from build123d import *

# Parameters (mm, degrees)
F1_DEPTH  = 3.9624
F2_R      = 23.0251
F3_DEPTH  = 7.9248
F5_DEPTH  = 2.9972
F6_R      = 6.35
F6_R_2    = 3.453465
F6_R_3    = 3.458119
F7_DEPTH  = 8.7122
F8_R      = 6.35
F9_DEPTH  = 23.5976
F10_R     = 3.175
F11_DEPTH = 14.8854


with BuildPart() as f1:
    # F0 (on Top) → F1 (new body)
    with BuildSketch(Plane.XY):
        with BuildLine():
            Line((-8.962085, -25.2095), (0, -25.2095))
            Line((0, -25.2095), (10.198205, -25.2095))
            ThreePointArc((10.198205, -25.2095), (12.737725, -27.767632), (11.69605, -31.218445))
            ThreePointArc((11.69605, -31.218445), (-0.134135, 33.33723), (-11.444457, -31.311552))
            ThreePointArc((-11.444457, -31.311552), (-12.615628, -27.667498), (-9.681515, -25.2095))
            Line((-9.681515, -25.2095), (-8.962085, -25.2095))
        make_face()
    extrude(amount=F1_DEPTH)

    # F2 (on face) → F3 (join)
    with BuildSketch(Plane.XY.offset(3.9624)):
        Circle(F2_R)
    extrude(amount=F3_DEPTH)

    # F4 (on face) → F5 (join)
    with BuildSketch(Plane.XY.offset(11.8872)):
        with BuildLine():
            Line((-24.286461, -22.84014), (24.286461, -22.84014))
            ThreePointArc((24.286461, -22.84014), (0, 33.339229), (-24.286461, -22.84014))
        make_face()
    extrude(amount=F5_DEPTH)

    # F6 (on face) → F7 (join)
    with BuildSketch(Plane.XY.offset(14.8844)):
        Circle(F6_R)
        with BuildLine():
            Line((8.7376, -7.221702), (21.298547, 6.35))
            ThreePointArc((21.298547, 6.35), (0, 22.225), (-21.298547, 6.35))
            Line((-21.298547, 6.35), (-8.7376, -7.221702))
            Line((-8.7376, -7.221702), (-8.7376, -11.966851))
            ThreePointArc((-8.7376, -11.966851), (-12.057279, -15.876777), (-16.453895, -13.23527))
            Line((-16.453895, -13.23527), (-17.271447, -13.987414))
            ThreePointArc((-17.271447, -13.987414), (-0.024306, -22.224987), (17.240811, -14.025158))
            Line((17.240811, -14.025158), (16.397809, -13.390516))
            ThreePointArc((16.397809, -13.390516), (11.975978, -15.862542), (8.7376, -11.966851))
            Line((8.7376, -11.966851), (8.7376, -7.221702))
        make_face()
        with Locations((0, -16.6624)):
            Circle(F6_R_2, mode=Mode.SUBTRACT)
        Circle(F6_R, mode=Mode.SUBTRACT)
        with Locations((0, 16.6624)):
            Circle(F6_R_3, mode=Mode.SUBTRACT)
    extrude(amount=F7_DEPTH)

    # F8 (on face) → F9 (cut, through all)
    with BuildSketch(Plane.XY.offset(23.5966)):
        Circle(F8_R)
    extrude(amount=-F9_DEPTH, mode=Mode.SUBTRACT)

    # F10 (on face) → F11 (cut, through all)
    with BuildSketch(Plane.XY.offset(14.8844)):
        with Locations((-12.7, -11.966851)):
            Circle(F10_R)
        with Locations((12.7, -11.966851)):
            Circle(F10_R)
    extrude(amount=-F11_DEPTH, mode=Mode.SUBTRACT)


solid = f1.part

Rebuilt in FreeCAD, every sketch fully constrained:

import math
import FreeCAD as App
import Part
import Sketcher

V = App.Vector
Q = App.Units.Quantity

doc = App.newDocument("Part")
body = doc.addObject("PartDesign::Body", "Body")

sketch1 = body.newObject("Sketcher::SketchObject", "Sketch")
sketch1.AttachmentSupport = (doc.getObject("XY_Plane"), [""])
sketch1.MapMode = "FlatFace"
sketch1.addGeometry(Part.ArcOfCircle(Part.Circle(V(9.3, -28.6, 0), V(0, 0, 1), 3.5), math.radians(-48), math.radians(76)), False)
sketch1.addGeometry(Part.ArcOfCircle(Part.Circle(V(0, 0, 0), V(0, 0, 1), 33.3), math.radians(-69), math.radians(250)), False)
sketch1.addGeometry(Part.ArcOfCircle(Part.Circle(V(-9.3, -28.6, 0), V(0, 0, 1), 3.4), math.radians(96), math.radians(232)), False)
sketch1.addGeometry(Part.LineSegment(V(-9.7, -25.2, 0), V(10.2, -25.2, 0)), False)
sketch1.addConstraint(Sketcher.Constraint("Coincident", 0, 1, 1, 1))
sketch1.addConstraint(Sketcher.Constraint("Coincident", 1, 2, 2, 2))
sketch1.addConstraint(Sketcher.Constraint("Coincident", 2, 1, 3, 1))
sketch1.addConstraint(Sketcher.Constraint("Coincident", 3, 2, 0, 2))
sketch1.addConstraint(Sketcher.Constraint("Horizontal", 3))
sketch1.addConstraint(Sketcher.Constraint("Coincident", 1, 3, -1, 1))
sketch1.addConstraint(Sketcher.Constraint("Symmetric", 0, 3, 2, 3, -2))
sketch1.addConstraint(Sketcher.Constraint("Radius", 1, Q("1.3125 in")))
sketch1.addConstraint(Sketcher.Constraint("DistanceX", -1, 1, 0, 3, Q("0.367 in")))
sketch1.addConstraint(Sketcher.Constraint("Radius", 0, 3.520451))
sketch1.addConstraint(Sketcher.Constraint("Radius", 2, 3.428539))
sketch1.addConstraint(Sketcher.Constraint("DistanceY", 2, 1, -1, 1, Q("0.9925 in")))
sketch1.addConstraint(Sketcher.Constraint("DistanceX", 3, 1, 3, 2, 19.87972))
pad1 = body.newObject("PartDesign::Pad", "Pad")
pad1.Profile = sketch1
pad1.Length = Q("0.156 in")

sketch2 = body.newObject("Sketcher::SketchObject", "Sketch001")
sketch2.AttachmentSupport = (doc.getObject("XY_Plane"), [""])
sketch2.MapMode = "FlatFace"
sketch2.AttachmentOffset = App.Placement(V(0, 0, 0.156 * 25.4), App.Rotation())
sketch2.addGeometry(Part.Circle(V(0, 0, 0), V(0, 0, 1), 23), False)
sketch2.addConstraint(Sketcher.Constraint("Coincident", 0, 3, -1, 1))
sketch2.addConstraint(Sketcher.Constraint("Diameter", 0, Q("1.813 in")))
pad2 = body.newObject("PartDesign::Pad", "Pad001")
pad2.Profile = sketch2
pad2.Length = Q("0.312 in")

sketch3 = body.newObject("Sketcher::SketchObject", "Sketch002")
sketch3.AttachmentSupport = (doc.getObject("XY_Plane"), [""])
sketch3.MapMode = "FlatFace"
sketch3.AttachmentOffset = App.Placement(V(0, 0, 0.468 * 25.4), App.Rotation())
sketch3.addGeometry(Part.LineSegment(V(-24, -23, 0), V(24, -23, 0)), False)
sketch3.addGeometry(Part.ArcOfCircle(Part.Circle(V(0, 0, 0), V(0, 0, 1), 33), math.radians(-43), math.radians(223)), False)
sketch3.addConstraint(Sketcher.Constraint("Coincident", 0, 1, 1, 2))
sketch3.addConstraint(Sketcher.Constraint("Coincident", 1, 1, 0, 2))
sketch3.addConstraint(Sketcher.Constraint("Horizontal", 0))
sketch3.addConstraint(Sketcher.Constraint("Coincident", 1, 3, -1, 1))
sketch3.addConstraint(Sketcher.Constraint("Radius", 1, 33.339229))
sketch3.addConstraint(Sketcher.Constraint("DistanceX", 0, 1, 0, 2, 48.572922))
pad3 = body.newObject("PartDesign::Pad", "Pad002")
pad3.Profile = sketch3
pad3.Length = Q("0.118 in")

sketch4 = body.newObject("Sketcher::SketchObject", "Sketch003")
sketch4.AttachmentSupport = (doc.getObject("XY_Plane"), [""])
sketch4.MapMode = "FlatFace"
sketch4.AttachmentOffset = App.Placement(V(0, 0, 0.586 * 25.4), App.Rotation())
sketch4.addGeometry(Part.LineSegment(V(8.7, -7.2, 0), V(21.3, 6.3, 0)), False)
sketch4.addGeometry(Part.ArcOfCircle(Part.Circle(V(0, 0, 0), V(0, 0, 1), 22.2), math.radians(17), math.radians(163)), False)
sketch4.addGeometry(Part.LineSegment(V(-21.3, 6.3, 0), V(-8.7, -7.2, 0)), False)
sketch4.addGeometry(Part.LineSegment(V(-8.7, -7.2, 0), V(-8.7, -12, 0)), False)
sketch4.addGeometry(Part.ArcOfCircle(Part.Circle(V(-12.7, -12, 0), V(0, 0, 1), 4), math.radians(-161), math.radians(0)), False)
sketch4.addGeometry(Part.LineSegment(V(-16.5, -13.2, 0), V(-17.3, -14, 0)), False)
sketch4.addGeometry(Part.ArcOfCircle(Part.Circle(V(0, 0, 0), V(0, 0, 1), 22.2), math.radians(-141), math.radians(-39)), False)
sketch4.addGeometry(Part.LineSegment(V(17.2, -14, 0), V(16.4, -13.4, 0)), False)
sketch4.addGeometry(Part.ArcOfCircle(Part.Circle(V(12.7, -12, 0), V(0, 0, 1), 4), math.radians(180), math.radians(339)), False)
sketch4.addGeometry(Part.LineSegment(V(8.7, -12, 0), V(8.7, -7.2, 0)), False)
sketch4.addGeometry(Part.Circle(V(0, -16.7, 0), V(0, 0, 1), 3.5), False)
sketch4.addGeometry(Part.Circle(V(0, 0, 0), V(0, 0, 1), 6.3), False)
sketch4.addGeometry(Part.Circle(V(0, 16.7, 0), V(0, 0, 1), 3.5), False)
sketch4.addConstraint(Sketcher.Constraint("Coincident", 0, 2, 1, 1))
sketch4.addConstraint(Sketcher.Constraint("Coincident", 1, 2, 2, 1))
sketch4.addConstraint(Sketcher.Constraint("Coincident", 2, 2, 3, 1))
sketch4.addConstraint(Sketcher.Constraint("Tangent", 3, 2, 4, 2))
sketch4.addConstraint(Sketcher.Constraint("Coincident", 4, 1, 5, 1))
sketch4.addConstraint(Sketcher.Constraint("Coincident", 5, 2, 6, 1))
sketch4.addConstraint(Sketcher.Constraint("Coincident", 6, 2, 7, 1))
sketch4.addConstraint(Sketcher.Constraint("Coincident", 7, 2, 8, 2))
sketch4.addConstraint(Sketcher.Constraint("Tangent", 8, 1, 9, 1))
sketch4.addConstraint(Sketcher.Constraint("Coincident", 9, 2, 0, 1))
sketch4.addConstraint(Sketcher.Constraint("Vertical", 3))
sketch4.addConstraint(Sketcher.Constraint("Vertical", 9))
sketch4.addConstraint(Sketcher.Constraint("Coincident", 1, 3, -1, 1))
sketch4.addConstraint(Sketcher.Constraint("Coincident", 6, 3, -1, 1))
sketch4.addConstraint(Sketcher.Constraint("Coincident", 11, 3, -1, 1))
sketch4.addConstraint(Sketcher.Constraint("Equal", 1, 6))
sketch4.addConstraint(Sketcher.Constraint("Equal", 4, 8))
sketch4.addConstraint(Sketcher.Constraint("Symmetric", 10, 3, 12, 3, -1, 1))
sketch4.addConstraint(Sketcher.Constraint("Symmetric", 4, 3, 8, 3, -2))
sketch4.addConstraint(Sketcher.Constraint("PointOnObject", 10, 3, -2))
sketch4.addConstraint(Sketcher.Constraint("Horizontal", 0, 2, 1, 2))
sketch4.addConstraint(Sketcher.Constraint("Horizontal", 2, 2, 9, 2))
sketch4.addConstraint(Sketcher.Constraint("Diameter", 11, Q("0.5 in")))
sketch4.addConstraint(Sketcher.Constraint("Radius", 1, Q("0.875 in")))
sketch4.addConstraint(Sketcher.Constraint("Radius", 4, Q("0.156 in")))
sketch4.addConstraint(Sketcher.Constraint("DistanceX", 4, 3, 8, 3, Q("1 in")))
sketch4.addConstraint(Sketcher.Constraint("DistanceY", -1, 1, 0, 2, Q("0.25 in")))
sketch4.addConstraint(Sketcher.Constraint("Diameter", 10, 6.90693))
sketch4.addConstraint(Sketcher.Constraint("DistanceY", 10, 3, -1, 1, Q("0.656 in")))
sketch4.addConstraint(Sketcher.Constraint("Diameter", 12, 6.916238))
sketch4.addConstraint(Sketcher.Constraint("DistanceY", 3, 2, 3, 1, 4.745149))
sketch4.addConstraint(Sketcher.Constraint("DistanceY", 2, 2, -1, 1, 7.221702))
sketch4.addConstraint(Sketcher.Constraint("Distance", 7, 1.055189))
sketch4.addConstraint(Sketcher.Constraint("DistanceY", 4, 1, -1, 1, 13.23527))
sketch4.addConstraint(Sketcher.Constraint("DistanceX", -1, 1, 6, 2, 17.240811))
sketch4.addConstraint(Sketcher.Constraint("DistanceY", 5, 2, 2, 2, 6.765712))
pad4 = body.newObject("PartDesign::Pad", "Pad003")
pad4.Profile = sketch4
pad4.Length = Q("0.343 in")

sketch5 = body.newObject("Sketcher::SketchObject", "Sketch004")
sketch5.AttachmentSupport = (doc.getObject("XY_Plane"), [""])
sketch5.MapMode = "FlatFace"
sketch5.AttachmentOffset = App.Placement(V(0, 0, 0.929 * 25.4), App.Rotation())
sketch5.addGeometry(Part.Circle(V(0, 0, 0), V(0, 0, 1), 6), False)
sketch5.addConstraint(Sketcher.Constraint("Coincident", 0, 3, -1, 1))
sketch5.addConstraint(Sketcher.Constraint("Diameter", 0, Q("0.5 in")))
pocket1 = body.newObject("PartDesign::Pocket", "Pocket")
pocket1.Profile = sketch5
pocket1.Type = "ThroughAll"

sketch6 = body.newObject("Sketcher::SketchObject", "Sketch005")
sketch6.AttachmentSupport = (doc.getObject("XY_Plane"), [""])
sketch6.MapMode = "FlatFace"
sketch6.AttachmentOffset = App.Placement(V(0, 0, 0.586 * 25.4), App.Rotation())
sketch6.addGeometry(Part.Circle(V(-12.7, -12, 0), V(0, 0, 1), 3.2), False)
sketch6.addGeometry(Part.Circle(V(12.7, -12, 0), V(0, 0, 1), 3.2), False)
sketch6.addConstraint(Sketcher.Constraint("Equal", 0, 1))
sketch6.addConstraint(Sketcher.Constraint("Symmetric", 0, 3, 1, 3, -2))
sketch6.addConstraint(Sketcher.Constraint("Diameter", 0, Q("0.25 in")))
sketch6.addConstraint(Sketcher.Constraint("DistanceX", 0, 3, 1, 3, Q("1 in")))
sketch6.addConstraint(Sketcher.Constraint("DistanceY", 0, 3, -1, 1, 11.966851))
pocket2 = body.newObject("PartDesign::Pocket", "Pocket001")
pocket2.Profile = sketch6
pocket2.Type = "ThroughAll"

doc.recompute()
